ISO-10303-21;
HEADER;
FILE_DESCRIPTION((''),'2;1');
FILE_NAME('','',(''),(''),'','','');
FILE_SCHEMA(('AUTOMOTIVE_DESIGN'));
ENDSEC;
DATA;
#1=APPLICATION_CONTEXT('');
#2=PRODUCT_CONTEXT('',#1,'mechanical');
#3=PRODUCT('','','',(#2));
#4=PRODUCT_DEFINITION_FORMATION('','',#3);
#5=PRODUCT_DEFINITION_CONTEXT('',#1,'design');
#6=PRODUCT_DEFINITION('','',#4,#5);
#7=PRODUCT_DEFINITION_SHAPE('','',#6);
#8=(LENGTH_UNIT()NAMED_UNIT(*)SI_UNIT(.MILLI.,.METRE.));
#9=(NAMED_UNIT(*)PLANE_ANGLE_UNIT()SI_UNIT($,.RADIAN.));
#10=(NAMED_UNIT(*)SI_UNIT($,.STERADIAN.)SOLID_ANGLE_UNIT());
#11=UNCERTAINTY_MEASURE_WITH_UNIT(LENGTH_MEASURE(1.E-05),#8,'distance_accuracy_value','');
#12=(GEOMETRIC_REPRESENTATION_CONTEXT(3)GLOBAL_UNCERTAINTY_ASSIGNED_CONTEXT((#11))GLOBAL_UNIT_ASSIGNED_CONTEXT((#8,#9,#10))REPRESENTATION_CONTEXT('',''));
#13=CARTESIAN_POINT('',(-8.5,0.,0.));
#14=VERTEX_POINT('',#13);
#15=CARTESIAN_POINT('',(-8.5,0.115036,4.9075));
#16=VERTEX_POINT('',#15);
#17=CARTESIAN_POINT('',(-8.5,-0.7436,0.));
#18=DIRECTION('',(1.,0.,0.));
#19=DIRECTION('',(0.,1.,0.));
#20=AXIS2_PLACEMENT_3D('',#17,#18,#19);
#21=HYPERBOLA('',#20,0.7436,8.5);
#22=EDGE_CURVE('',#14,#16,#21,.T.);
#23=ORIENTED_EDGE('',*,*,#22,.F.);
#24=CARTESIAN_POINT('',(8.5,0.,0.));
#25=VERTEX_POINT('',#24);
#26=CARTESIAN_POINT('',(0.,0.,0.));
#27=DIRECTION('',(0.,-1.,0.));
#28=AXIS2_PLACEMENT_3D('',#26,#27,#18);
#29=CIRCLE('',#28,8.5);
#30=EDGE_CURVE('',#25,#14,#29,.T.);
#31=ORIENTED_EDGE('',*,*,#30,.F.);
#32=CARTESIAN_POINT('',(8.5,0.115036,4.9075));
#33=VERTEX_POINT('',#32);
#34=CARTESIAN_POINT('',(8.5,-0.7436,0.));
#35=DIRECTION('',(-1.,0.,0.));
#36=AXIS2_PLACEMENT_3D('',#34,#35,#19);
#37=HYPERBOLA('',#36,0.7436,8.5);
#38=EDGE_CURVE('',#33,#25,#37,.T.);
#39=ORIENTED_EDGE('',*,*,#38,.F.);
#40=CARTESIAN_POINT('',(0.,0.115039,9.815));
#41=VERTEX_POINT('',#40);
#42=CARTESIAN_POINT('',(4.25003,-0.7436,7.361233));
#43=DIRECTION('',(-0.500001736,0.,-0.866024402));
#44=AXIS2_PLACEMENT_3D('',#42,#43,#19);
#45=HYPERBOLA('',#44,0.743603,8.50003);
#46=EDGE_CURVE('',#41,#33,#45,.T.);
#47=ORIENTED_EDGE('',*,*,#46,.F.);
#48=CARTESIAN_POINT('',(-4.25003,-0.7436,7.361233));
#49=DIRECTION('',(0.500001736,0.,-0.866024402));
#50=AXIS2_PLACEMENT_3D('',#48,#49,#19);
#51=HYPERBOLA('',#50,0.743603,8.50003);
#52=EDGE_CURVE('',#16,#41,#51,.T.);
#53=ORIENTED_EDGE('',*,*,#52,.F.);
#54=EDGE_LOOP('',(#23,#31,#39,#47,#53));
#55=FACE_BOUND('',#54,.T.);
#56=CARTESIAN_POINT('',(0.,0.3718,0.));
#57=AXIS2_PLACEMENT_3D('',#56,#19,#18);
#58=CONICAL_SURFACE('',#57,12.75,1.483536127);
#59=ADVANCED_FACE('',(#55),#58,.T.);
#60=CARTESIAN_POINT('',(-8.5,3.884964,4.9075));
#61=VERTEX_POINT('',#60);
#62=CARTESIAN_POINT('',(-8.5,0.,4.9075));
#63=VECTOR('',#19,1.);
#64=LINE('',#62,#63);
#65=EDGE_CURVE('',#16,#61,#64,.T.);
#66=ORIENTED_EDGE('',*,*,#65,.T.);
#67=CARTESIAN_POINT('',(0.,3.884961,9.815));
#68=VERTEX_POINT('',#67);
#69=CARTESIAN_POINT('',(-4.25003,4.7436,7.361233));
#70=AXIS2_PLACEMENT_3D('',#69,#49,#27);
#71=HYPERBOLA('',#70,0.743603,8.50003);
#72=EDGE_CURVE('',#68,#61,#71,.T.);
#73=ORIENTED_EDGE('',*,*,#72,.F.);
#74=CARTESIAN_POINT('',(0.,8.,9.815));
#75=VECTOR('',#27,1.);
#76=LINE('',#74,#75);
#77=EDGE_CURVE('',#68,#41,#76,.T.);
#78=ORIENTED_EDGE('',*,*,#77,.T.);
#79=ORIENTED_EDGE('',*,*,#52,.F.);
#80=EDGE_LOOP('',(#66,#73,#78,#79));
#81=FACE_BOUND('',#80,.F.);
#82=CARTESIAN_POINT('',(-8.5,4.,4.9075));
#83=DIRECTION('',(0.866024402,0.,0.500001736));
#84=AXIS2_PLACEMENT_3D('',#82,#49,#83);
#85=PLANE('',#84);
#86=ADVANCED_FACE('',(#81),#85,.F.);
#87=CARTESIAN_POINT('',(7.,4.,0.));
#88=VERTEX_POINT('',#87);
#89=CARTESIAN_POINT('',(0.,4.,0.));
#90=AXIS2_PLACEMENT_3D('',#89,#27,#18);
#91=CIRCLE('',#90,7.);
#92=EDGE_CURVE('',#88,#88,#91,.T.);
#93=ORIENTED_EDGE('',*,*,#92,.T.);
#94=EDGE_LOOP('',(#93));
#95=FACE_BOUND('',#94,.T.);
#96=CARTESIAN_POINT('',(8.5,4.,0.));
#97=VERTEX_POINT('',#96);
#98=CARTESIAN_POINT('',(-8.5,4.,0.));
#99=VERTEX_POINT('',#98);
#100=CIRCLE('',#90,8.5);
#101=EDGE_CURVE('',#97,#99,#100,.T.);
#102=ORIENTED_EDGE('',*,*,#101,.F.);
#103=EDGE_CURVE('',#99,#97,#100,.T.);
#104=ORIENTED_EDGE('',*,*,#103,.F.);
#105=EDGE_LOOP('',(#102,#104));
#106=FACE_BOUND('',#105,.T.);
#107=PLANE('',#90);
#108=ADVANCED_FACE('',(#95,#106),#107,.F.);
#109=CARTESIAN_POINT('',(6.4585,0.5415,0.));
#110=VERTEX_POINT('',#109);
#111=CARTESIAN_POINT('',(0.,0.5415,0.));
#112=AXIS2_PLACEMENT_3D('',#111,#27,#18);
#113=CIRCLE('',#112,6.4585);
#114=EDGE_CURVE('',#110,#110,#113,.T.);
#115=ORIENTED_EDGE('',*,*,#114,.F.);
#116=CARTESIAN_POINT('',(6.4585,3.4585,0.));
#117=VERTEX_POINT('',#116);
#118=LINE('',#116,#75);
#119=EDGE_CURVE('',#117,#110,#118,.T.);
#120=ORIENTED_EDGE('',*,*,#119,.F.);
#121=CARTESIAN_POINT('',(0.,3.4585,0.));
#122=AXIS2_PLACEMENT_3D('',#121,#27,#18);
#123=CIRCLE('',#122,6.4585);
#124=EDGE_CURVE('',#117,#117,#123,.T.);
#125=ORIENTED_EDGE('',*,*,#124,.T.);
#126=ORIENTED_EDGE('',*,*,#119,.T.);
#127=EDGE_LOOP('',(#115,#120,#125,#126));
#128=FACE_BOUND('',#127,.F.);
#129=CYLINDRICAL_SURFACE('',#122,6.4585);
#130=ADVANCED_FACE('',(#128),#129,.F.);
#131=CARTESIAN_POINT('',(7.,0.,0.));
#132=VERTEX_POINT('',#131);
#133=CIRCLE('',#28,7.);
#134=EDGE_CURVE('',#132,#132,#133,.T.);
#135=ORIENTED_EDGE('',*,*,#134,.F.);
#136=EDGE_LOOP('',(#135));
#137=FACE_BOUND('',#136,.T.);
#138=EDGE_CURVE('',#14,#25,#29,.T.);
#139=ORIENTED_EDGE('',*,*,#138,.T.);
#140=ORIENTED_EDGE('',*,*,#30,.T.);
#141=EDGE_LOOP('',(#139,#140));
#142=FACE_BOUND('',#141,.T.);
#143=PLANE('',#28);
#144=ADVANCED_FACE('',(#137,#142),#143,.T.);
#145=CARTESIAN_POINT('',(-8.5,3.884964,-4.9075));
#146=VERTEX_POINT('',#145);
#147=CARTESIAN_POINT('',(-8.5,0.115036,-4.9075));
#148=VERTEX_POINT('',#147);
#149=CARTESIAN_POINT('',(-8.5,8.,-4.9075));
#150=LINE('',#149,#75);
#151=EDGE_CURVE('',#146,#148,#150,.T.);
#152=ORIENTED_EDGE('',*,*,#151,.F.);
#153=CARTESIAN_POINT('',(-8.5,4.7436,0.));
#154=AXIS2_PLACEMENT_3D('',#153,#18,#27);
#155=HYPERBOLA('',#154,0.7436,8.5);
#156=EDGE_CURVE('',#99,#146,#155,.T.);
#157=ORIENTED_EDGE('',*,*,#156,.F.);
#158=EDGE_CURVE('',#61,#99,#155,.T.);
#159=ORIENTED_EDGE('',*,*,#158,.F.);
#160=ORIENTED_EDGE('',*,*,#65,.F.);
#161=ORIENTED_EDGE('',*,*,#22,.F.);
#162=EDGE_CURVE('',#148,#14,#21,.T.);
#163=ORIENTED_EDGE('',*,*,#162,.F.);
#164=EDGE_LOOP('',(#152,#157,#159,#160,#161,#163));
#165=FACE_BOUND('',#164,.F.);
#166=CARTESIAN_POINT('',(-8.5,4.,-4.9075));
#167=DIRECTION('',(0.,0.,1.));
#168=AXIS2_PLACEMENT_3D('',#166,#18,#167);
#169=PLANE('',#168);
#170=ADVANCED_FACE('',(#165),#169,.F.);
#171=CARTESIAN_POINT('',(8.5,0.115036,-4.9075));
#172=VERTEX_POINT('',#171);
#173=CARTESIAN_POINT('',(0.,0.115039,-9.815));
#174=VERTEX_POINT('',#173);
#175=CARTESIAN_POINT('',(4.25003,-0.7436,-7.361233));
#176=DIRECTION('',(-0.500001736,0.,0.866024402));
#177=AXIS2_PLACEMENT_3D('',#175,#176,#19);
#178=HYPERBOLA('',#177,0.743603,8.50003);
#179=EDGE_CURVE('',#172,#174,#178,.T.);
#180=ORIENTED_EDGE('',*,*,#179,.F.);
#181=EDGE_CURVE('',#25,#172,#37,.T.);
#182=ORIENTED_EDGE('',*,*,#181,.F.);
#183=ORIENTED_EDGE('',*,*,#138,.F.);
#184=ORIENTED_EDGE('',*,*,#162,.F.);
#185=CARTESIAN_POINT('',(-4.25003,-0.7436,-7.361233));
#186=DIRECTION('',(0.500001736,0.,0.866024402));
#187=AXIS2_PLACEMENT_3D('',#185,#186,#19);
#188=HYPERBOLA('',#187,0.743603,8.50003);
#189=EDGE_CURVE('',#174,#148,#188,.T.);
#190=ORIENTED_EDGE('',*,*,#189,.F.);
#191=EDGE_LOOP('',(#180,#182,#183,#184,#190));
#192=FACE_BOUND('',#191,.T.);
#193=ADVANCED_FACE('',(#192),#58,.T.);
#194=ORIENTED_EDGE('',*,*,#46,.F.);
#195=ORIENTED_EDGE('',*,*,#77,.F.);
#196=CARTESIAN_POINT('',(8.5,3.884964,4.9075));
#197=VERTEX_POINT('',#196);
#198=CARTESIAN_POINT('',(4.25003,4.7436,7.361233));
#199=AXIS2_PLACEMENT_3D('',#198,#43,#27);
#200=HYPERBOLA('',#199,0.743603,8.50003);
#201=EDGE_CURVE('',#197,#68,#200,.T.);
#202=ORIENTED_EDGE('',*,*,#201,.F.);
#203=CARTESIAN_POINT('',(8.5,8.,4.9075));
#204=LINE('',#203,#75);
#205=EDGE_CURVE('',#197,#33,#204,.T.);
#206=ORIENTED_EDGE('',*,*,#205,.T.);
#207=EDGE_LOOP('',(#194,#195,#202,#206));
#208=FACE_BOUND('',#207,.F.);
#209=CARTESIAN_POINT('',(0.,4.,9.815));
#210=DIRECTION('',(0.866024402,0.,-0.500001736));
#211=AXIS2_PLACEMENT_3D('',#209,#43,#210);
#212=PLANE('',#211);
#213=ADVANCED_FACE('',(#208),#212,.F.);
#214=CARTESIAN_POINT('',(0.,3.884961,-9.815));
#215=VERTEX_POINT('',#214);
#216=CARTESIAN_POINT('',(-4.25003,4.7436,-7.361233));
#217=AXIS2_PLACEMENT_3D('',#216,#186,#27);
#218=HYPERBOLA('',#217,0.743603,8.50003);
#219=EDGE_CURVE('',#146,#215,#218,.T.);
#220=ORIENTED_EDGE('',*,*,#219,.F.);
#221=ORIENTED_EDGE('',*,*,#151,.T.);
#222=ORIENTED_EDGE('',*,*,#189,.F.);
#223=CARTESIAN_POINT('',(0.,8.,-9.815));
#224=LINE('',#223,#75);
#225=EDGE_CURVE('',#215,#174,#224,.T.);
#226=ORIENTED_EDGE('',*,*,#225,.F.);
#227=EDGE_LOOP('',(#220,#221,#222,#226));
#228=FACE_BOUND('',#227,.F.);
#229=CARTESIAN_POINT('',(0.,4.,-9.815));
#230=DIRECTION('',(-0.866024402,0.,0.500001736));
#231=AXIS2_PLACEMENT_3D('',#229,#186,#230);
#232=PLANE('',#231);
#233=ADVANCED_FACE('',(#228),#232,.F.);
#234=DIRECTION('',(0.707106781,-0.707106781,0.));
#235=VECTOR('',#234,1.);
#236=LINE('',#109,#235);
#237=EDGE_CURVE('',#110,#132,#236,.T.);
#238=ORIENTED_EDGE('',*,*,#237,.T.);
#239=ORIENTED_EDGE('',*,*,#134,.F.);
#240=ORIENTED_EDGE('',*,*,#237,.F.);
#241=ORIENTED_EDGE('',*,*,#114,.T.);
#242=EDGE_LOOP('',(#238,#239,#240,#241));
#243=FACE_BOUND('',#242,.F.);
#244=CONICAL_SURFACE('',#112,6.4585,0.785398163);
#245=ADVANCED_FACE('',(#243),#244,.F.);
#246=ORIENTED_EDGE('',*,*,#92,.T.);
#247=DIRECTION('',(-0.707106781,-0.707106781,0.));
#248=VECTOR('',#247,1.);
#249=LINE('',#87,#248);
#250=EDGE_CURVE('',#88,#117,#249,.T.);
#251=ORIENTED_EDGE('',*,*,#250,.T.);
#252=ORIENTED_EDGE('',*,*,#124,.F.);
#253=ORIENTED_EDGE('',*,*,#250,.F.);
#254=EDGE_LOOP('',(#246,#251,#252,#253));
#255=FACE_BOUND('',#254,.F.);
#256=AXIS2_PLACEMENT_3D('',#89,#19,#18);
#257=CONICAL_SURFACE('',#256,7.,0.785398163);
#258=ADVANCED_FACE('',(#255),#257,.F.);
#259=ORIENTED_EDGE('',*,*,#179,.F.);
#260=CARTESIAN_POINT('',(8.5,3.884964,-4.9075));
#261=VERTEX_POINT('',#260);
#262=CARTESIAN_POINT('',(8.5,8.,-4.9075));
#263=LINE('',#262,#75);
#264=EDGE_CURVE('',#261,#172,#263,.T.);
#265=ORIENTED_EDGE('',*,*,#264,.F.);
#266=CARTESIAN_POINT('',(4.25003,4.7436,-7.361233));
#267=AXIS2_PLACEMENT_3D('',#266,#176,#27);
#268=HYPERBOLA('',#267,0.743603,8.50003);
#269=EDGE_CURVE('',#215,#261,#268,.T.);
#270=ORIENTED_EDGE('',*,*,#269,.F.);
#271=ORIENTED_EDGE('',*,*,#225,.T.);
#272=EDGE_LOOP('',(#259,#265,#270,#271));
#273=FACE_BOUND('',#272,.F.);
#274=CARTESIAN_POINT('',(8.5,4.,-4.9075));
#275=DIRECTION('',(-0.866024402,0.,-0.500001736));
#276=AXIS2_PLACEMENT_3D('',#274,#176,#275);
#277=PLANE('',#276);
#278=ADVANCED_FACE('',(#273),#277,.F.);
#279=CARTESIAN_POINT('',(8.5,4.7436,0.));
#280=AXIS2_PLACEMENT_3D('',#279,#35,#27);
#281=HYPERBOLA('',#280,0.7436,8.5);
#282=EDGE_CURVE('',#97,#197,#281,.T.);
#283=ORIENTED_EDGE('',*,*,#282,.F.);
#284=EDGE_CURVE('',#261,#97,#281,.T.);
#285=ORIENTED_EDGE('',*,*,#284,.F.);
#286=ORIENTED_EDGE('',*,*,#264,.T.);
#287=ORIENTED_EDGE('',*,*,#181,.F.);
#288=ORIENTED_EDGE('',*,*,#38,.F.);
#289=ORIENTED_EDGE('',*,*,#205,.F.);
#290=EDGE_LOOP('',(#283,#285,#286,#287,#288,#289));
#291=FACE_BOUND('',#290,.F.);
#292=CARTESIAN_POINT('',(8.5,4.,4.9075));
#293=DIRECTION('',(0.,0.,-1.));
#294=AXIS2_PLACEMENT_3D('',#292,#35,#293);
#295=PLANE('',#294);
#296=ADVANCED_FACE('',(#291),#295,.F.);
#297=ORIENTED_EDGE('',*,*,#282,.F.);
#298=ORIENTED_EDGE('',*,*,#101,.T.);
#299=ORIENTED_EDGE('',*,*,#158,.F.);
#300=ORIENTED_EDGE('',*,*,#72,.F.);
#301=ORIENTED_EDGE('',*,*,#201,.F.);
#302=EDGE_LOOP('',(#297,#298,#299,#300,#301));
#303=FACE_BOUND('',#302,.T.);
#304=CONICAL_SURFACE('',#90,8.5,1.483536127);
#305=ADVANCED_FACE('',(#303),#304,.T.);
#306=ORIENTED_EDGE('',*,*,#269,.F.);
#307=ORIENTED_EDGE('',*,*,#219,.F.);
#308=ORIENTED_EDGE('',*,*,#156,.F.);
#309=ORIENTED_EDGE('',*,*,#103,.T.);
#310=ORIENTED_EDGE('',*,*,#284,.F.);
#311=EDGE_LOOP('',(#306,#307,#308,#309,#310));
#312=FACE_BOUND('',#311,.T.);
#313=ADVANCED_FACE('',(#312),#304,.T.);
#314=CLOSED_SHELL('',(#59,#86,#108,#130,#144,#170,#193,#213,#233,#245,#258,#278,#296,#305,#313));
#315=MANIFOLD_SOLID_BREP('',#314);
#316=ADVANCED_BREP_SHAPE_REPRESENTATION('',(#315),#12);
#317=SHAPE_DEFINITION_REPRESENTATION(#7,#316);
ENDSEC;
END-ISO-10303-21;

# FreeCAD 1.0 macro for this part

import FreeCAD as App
import Part
import Sketcher
from FreeCAD import Vector
Q = App.Units.Quantity

doc = App.newDocument("Part")
params = doc.addObject("Spreadsheet::Sheet", "Params")
for row, (alias, value) in enumerate([
    ("sketch1_height", "4 mm"),
    ("sketch1_width", "8.5 mm"),
    ("revolution_angle", "360 deg"),
    ("sketch2_width", "34 mm"),
    ("pocket1_length", "8 mm"),
    ("sketch3_width", "7 mm"),
    ("sketch3_height", "4 mm"),
    ("groove_angle", "360 deg"),
], start=1):
    params.set(f"A{row}", alias)
    params.set(f"B{row}", "=" + value)
    params.setAlias(f"B{row}", alias)

body = doc.addObject("PartDesign::Body", "Body")

# Sketch on XY plane
sketch1 = body.newObject("Sketcher::SketchObject", "Sketch")
sketch1.AttachmentSupport = (doc.getObject("XY_Plane"), [""])
sketch1.MapMode = "FlatFace"
sketch1.addGeometry(Part.LineSegment(Vector(0, 4, 0), Vector(0, 0, 0)), False)
sketch1.addGeometry(Part.LineSegment(Vector(0, 0, 0), Vector(8.5, 0, 0)), False)
sketch1.addGeometry(Part.LineSegment(Vector(8.5, 0, 0), Vector(12.8, 0.4, 0)), False)
sketch1.addGeometry(Part.LineSegment(Vector(12.8, 0.4, 0), Vector(12.8, 3.6, 0)), False)
sketch1.addGeometry(Part.LineSegment(Vector(12.8, 3.6, 0), Vector(8.5, 4, 0)), False)
sketch1.addGeometry(Part.LineSegment(Vector(8.5, 4, 0), Vector(0, 4, 0)), False)
sketch1.addConstraint(Sketcher.Constraint("Coincident", 0, 2, 1, 1))
sketch1.addConstraint(Sketcher.Constraint("Coincident", 1, 2, 2, 1))
sketch1.addConstraint(Sketcher.Constraint("Coincident", 2, 2, 3, 1))
sketch1.addConstraint(Sketcher.Constraint("Coincident", 3, 2, 4, 1))
sketch1.addConstraint(Sketcher.Constraint("Coincident", 4, 2, 5, 1))
sketch1.addConstraint(Sketcher.Constraint("Coincident", 5, 2, 0, 1))
sketch1.addConstraint(Sketcher.Constraint("Vertical", 0))
sketch1.addConstraint(Sketcher.Constraint("Horizontal", 1))
sketch1.addConstraint(Sketcher.Constraint("Vertical", 3))
sketch1.addConstraint(Sketcher.Constraint("Horizontal", 5))
sketch1.addConstraint(Sketcher.Constraint("Coincident", 0, 2, -1, 1))
sketch1.addConstraint(Sketcher.Constraint("Vertical", 1, 2, 4, 2))
sketch1.addConstraint(Sketcher.Constraint("Equal", 2, 4))
sketch1.addConstraint(Sketcher.Constraint("DistanceY", 0, 2, 0, 1, Q("4 mm")))
sketch1.addConstraint(Sketcher.Constraint("Angle", 2, Q("4.9996 deg")))
sketch1.addConstraint(Sketcher.Constraint("DistanceX", 1, 1, 1, 2, Q("8.5 mm")))
sketch1.addConstraint(Sketcher.Constraint("DistanceX", -1, 1, 2, 2, Q("12.75 mm")))
sketch1.setExpression("Constraints[13]", "Params.sketch1_height")
sketch1.setExpression("Constraints[15]", "Params.sketch1_width")
revolution = body.newObject("PartDesign::Revolution", "Revolution")
revolution.Profile = sketch1
revolution.ReferenceAxis = (sketch1, ["V_Axis"])
revolution.setExpression("Angle", "Params.revolution_angle")

# Sketch on XZ plane
sketch2 = body.newObject("Sketcher::SketchObject", "Sketch001")
sketch2.AttachmentSupport = (doc.getObject("XZ_Plane"), [""])
sketch2.MapMode = "FlatFace"
sketch2.AttachmentOffset = App.Placement(Vector(0, 0, -4), App.Rotation())
sketch2.addGeometry(Part.LineSegment(Vector(17, -17, 0), Vector(-17, -17, 0)), False)
sketch2.addGeometry(Part.LineSegment(Vector(-17, -17, 0), Vector(-17, 17, 0)), False)
sketch2.addGeometry(Part.LineSegment(Vector(-17, 17, 0), Vector(17, 17, 0)), False)
sketch2.addGeometry(Part.LineSegment(Vector(17, 17, 0), Vector(17, -17, 0)), False)
sketch2.addGeometry(Part.LineSegment(Vector(0, 10, 0), Vector(-8, 5, 0)), False)
sketch2.addGeometry(Part.LineSegment(Vector(-8, 5, 0), Vector(-8, -5, 0)), False)
sketch2.addGeometry(Part.LineSegment(Vector(-8, -5, 0), Vector(0, -10, 0)), False)
sketch2.addGeometry(Part.LineSegment(Vector(0, -10, 0), Vector(8, -5, 0)), False)
sketch2.addGeometry(Part.LineSegment(Vector(8, -5, 0), Vector(8, 5, 0)), False)
sketch2.addGeometry(Part.LineSegment(Vector(8, 5, 0), Vector(0, 10, 0)), False)
sketch2.addConstraint(Sketcher.Constraint("Coincident", 0, 2, 1, 1))
sketch2.addConstraint(Sketcher.Constraint("Coincident", 1, 2, 2, 1))
sketch2.addConstraint(Sketcher.Constraint("Coincident", 2, 2, 3, 1))
sketch2.addConstraint(Sketcher.Constraint("Coincident", 3, 2, 0, 1))
sketch2.addConstraint(Sketcher.Constraint("Coincident", 4, 2, 5, 1))
sketch2.addConstraint(Sketcher.Constraint("Coincident", 5, 2, 6, 1))
sketch2.addConstraint(Sketcher.Constraint("Coincident", 6, 2, 7, 1))
sketch2.addConstraint(Sketcher.Constraint("Coincident", 7, 2, 8, 1))
sketch2.addConstraint(Sketcher.Constraint("Coincident", 8, 2, 9, 1))
sketch2.addConstraint(Sketcher.Constraint("Coincident", 9, 2, 4, 1))
sketch2.addConstraint(Sketcher.Constraint("Horizontal", 0))
sketch2.addConstraint(Sketcher.Constraint("Vertical", 1))
sketch2.addConstraint(Sketcher.Constraint("Horizontal", 2))
sketch2.addConstraint(Sketcher.Constraint("Vertical", 3))
sketch2.addConstraint(Sketcher.Constraint("Vertical", 5))
sketch2.addConstraint(Sketcher.Constraint("Vertical", 8))
sketch2.addConstraint(Sketcher.Constraint("Symmetric", 0, 2, 2, 2, -1, 1))
sketch2.addConstraint(Sketcher.Constraint("Symmetric", 4, 2, 7, 2, -1, 1))
sketch2.addConstraint(Sketcher.Constraint("Symmetric", 6, 2, 9, 2, -1, 1))
sketch2.addConstraint(Sketcher.Constraint("PointOnObject", 6, 2, -2))
sketch2.addConstraint(Sketcher.Constraint("Parallel", 6, 9))
sketch2.addConstraint(Sketcher.Constraint("Horizontal", 5, 2, 7, 2))
sketch2.addConstraint(Sketcher.Constraint("Equal", 2, 1))
sketch2.addConstraint(Sketcher.Constraint("DistanceX", 0, 2, 0, 1, Q("34 mm")))
sketch2.addConstraint(Sketcher.Constraint("Angle", 4, Q("-150 deg")))
sketch2.addConstraint(Sketcher.Constraint("DistanceX", 5, 2, 7, 2, Q("17 mm")))
sketch2.addConstraint(Sketcher.Constraint("DistanceY", 5, 2, 5, 1, Q("9.815 mm")))
sketch2.setExpression("Constraints[23]", "Params.sketch2_width")
pocket1 = body.newObject("PartDesign::Pocket", "Pocket")
pocket1.Profile = sketch2
pocket1.setExpression("Length", "Params.pocket1_length")
pocket1.Midplane = True

# Sketch on XY plane
sketch3 = body.newObject("Sketcher::SketchObject", "Sketch002")
sketch3.AttachmentSupport = (doc.getObject("XY_Plane"), [""])
sketch3.MapMode = "FlatFace"
sketch3.addGeometry(Part.LineSegment(Vector(0, 4, 0), Vector(0, 0, 0)), False)
sketch3.addGeometry(Part.LineSegment(Vector(0, 0, 0), Vector(7, 0, 0)), False)
sketch3.addGeometry(Part.LineSegment(Vector(7, 0, 0), Vector(6.5, 0.5, 0)), False)
sketch3.addGeometry(Part.LineSegment(Vector(6.5, 0.5, 0), Vector(6.5, 3.5, 0)), False)
sketch3.addGeometry(Part.LineSegment(Vector(6.5, 3.5, 0), Vector(7, 4, 0)), False)
sketch3.addGeometry(Part.LineSegment(Vector(7, 4, 0), Vector(0, 4, 0)), False)
sketch3.addConstraint(Sketcher.Constraint("Coincident", 0, 2, 1, 1))
sketch3.addConstraint(Sketcher.Constraint("Coincident", 1, 2, 2, 1))
sketch3.addConstraint(Sketcher.Constraint("Coincident", 2, 2, 3, 1))
sketch3.addConstraint(Sketcher.Constraint("Coincident", 3, 2, 4, 1))
sketch3.addConstraint(Sketcher.Constraint("Coincident", 4, 2, 5, 1))
sketch3.addConstraint(Sketcher.Constraint("Coincident", 5, 2, 0, 1))
sketch3.addConstraint(Sketcher.Constraint("Vertical", 0))
sketch3.addConstraint(Sketcher.Constraint("Horizontal", 1))
sketch3.addConstraint(Sketcher.Constraint("Vertical", 3))
sketch3.addConstraint(Sketcher.Constraint("Horizontal", 5))
sketch3.addConstraint(Sketcher.Constraint("Coincident", 0, 2, -1, 1))
sketch3.addConstraint(Sketcher.Constraint("Perpendicular", 2, 4))
sketch3.addConstraint(Sketcher.Constraint("Vertical", 1, 2, 4, 2))
sketch3.addConstraint(Sketcher.Constraint("Equal", 2, 4))
sketch3.addConstraint(Sketcher.Constraint("DistanceX", 1, 1, 1, 2, Q("7 mm")))
sketch3.addConstraint(Sketcher.Constraint("DistanceY", 0, 2, 0, 1, Q("4 mm")))
sketch3.addConstraint(Sketcher.Constraint("DistanceY", 3, 1, 3, 2, Q("2.917 mm")))
sketch3.setExpression("Constraints[14]", "Params.sketch3_width")
sketch3.setExpression("Constraints[15]", "Params.sketch3_height")
groove = body.newObject("PartDesign::Groove", "Groove")
groove.Profile = sketch3
groove.ReferenceAxis = (sketch3, ["V_Axis"])
groove.setExpression("Angle", "Params.groove_angle")

doc.recompute()
